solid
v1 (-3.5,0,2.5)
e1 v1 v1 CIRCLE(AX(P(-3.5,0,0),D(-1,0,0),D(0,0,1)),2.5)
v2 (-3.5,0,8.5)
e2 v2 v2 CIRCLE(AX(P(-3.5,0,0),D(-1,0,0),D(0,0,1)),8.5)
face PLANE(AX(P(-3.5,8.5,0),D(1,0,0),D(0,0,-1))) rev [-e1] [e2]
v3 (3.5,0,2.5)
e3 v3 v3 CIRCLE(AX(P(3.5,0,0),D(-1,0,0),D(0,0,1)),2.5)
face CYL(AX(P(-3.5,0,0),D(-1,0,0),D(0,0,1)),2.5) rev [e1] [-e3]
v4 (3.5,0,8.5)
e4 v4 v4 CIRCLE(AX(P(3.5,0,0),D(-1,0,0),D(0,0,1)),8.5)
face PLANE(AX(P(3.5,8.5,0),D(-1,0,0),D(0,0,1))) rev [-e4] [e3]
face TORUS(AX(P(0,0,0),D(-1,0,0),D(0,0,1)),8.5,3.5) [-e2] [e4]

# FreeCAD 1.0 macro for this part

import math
import FreeCAD as App
import Part
import Sketcher
from FreeCAD import Vector
Q = App.Units.Quantity

doc = App.newDocument("Part")
body = doc.addObject("PartDesign::Body", "Body")

sketch1 = body.newObject("Sketcher::SketchObject", "Sketch")
sketch1.AttachmentSupport = (doc.getObject("XY_Plane"), [""])
sketch1.MapMode = "FlatFace"
sketch1.addGeometry([
    Part.LineSegment(Vector(-3.5, 2.5, 0), Vector(3.5, 2.5, 0)),
    Part.LineSegment(Vector(3.5, 2.5, 0), Vector(3.5, 8.5, 0)),
    Part.ArcOfCircle(Part.Circle(Vector(0, 8.5, 0), Vector(0, 0, 1), 3.5), math.radians(0), math.radians(180)),
    Part.LineSegment(Vector(-3.5, 8.5, 0), Vector(-3.5, 2.5, 0)),
], False)
sketch1.addConstraint([
    Sketcher.Constraint("Coincident", 0, 2, 1, 1),
    Sketcher.Constraint("Tangent", 1, 2, 2, 1),
    Sketcher.Constraint("Tangent", 2, 2, 3, 1),
    Sketcher.Constraint("Coincident", 3, 2, 0, 1),
    Sketcher.Constraint("Horizontal", 0),
    Sketcher.Constraint("Vertical", 1),
    Sketcher.Constraint("Vertical", 3),
    Sketcher.Constraint("PointOnObject", 2, 3, -2),
    Sketcher.Constraint("Radius", 2, Q("3.5 mm")),
    Sketcher.Constraint("DistanceY", 1, 1, 1, 2, Q("6 mm")),
    Sketcher.Constraint("DistanceY", -1, 1, 2, 3, Q("8.5 mm")),
])
revolution = body.newObject("PartDesign::Revolution", "Revolution")
revolution.Profile = sketch1
revolution.ReferenceAxis = (sketch1, ["H_Axis"])
revolution.Angle = 360

doc.recompute()
